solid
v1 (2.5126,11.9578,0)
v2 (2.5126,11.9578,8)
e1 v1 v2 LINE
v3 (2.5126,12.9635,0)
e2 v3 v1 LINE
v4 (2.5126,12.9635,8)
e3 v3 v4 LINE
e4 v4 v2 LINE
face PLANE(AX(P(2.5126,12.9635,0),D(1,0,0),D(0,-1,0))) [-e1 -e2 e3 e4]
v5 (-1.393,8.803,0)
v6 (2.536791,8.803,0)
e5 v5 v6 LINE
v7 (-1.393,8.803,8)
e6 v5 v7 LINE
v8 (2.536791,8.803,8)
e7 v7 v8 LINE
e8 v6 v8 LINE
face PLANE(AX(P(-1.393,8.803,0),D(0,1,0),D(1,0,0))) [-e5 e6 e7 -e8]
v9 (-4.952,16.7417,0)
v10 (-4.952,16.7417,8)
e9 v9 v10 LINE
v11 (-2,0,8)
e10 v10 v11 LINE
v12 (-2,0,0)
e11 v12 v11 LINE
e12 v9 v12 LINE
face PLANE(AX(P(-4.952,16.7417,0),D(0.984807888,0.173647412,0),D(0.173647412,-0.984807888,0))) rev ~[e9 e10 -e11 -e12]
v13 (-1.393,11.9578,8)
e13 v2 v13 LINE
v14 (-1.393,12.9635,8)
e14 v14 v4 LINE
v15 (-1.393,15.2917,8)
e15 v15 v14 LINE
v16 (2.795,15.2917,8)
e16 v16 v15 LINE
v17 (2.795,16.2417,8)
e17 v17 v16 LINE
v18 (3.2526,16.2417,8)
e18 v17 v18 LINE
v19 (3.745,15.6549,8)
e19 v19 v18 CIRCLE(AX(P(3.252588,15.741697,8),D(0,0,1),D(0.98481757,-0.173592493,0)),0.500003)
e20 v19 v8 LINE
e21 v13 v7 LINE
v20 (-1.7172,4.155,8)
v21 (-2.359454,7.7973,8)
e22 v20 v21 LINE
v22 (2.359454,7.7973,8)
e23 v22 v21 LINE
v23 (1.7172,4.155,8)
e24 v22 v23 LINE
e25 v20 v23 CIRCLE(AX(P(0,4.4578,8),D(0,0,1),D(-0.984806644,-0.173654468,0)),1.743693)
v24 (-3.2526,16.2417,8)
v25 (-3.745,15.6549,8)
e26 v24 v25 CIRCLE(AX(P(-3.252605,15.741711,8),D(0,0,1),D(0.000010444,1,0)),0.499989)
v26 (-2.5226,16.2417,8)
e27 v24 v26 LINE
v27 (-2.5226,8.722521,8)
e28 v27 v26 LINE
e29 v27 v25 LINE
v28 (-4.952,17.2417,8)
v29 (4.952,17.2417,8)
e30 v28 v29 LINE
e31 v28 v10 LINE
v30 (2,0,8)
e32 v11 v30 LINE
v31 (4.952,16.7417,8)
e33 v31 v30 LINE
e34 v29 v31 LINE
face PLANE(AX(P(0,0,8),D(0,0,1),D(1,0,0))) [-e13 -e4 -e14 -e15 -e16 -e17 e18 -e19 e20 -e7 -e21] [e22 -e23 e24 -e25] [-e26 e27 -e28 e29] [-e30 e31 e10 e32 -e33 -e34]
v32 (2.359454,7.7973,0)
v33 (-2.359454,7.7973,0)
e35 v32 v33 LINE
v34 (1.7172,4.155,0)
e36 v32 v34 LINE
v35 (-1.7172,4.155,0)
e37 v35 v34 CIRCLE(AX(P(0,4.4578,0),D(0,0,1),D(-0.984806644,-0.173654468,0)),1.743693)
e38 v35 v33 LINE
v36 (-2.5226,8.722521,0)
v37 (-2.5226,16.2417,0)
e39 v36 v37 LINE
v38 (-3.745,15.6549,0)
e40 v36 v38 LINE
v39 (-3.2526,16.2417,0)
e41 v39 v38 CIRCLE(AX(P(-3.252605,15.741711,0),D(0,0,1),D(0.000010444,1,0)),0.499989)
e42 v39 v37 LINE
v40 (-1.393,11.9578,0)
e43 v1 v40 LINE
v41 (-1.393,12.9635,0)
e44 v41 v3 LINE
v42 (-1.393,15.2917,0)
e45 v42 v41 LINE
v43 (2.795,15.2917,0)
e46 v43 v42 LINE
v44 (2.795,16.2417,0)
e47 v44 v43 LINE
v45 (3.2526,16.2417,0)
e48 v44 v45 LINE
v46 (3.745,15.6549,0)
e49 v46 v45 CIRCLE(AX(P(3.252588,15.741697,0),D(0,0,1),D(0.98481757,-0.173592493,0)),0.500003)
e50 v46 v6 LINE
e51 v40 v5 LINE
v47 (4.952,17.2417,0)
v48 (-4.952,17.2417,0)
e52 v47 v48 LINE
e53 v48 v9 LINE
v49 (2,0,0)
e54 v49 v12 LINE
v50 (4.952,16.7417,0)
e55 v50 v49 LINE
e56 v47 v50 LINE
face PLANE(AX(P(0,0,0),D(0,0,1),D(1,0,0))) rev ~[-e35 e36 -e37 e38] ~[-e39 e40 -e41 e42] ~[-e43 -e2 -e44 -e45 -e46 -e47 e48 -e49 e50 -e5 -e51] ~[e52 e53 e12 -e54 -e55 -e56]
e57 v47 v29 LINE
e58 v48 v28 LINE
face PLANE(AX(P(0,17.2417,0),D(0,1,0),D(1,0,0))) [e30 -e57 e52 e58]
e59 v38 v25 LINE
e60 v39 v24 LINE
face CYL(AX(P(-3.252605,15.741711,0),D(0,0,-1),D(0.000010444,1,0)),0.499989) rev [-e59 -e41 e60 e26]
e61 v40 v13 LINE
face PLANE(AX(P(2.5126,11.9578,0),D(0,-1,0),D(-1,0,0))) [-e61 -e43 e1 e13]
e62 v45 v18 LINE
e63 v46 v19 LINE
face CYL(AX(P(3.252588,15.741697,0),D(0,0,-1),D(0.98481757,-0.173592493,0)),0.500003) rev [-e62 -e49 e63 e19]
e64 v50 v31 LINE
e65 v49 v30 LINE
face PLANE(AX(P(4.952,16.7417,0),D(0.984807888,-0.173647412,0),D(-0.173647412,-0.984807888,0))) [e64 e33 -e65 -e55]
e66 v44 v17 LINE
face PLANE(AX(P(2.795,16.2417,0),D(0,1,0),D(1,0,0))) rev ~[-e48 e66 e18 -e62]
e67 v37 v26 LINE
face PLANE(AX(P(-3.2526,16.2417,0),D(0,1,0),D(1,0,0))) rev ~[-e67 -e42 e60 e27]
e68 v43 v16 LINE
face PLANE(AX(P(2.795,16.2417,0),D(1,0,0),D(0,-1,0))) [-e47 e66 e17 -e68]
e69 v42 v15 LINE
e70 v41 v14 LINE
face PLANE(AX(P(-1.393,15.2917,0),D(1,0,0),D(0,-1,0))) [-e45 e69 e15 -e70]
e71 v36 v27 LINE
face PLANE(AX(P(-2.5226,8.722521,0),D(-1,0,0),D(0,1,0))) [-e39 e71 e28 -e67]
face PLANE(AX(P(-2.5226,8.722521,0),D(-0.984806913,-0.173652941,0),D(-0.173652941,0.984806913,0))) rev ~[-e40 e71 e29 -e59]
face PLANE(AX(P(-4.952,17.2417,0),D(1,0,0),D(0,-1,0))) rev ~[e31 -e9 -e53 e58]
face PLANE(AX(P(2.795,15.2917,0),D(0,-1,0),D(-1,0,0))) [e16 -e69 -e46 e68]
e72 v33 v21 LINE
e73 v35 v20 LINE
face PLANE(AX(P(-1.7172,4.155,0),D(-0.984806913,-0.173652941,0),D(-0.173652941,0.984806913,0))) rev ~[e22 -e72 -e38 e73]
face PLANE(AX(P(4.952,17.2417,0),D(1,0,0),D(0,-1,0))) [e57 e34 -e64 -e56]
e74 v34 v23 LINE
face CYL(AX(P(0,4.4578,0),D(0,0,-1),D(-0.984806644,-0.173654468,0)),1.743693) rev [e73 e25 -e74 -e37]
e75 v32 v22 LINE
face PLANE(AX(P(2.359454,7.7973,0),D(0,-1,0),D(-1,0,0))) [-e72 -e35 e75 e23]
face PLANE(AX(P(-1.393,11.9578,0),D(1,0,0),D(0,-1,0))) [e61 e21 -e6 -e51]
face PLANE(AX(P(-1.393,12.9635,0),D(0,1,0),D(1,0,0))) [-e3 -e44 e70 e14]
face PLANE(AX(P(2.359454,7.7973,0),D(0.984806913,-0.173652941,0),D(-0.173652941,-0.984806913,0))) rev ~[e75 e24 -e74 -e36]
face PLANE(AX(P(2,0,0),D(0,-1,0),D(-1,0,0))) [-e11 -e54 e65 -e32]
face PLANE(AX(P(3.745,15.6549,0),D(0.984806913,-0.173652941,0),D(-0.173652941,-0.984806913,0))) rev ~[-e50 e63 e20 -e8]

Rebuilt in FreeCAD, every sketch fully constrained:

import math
import FreeCAD as App
import Part
import Sketcher
Q = App.Units.Quantity


def add_polygon(sketch, points):
    """Adds a closed chain of lines whose ends are joined by coincident constraints."""
    first, n = sketch.GeometryCount, len(points)
    for a, b in zip(points, points[1:] + points[:1]):
        sketch.addGeometry(Part.LineSegment(App.Vector(*a, 0), App.Vector(*b, 0)), False)
    for i in range(n):
        sketch.addConstraint(Sketcher.Constraint("Coincident", first + i, 2, first + (i + 1) % n, 1))

doc = App.newDocument("Part")
body = doc.addObject("PartDesign::Body", "Body")

sketch1 = body.newObject("Sketcher::SketchObject", "Sketch")
sketch1.AttachmentSupport = (doc.getObject("XY_Plane"), [""])
sketch1.MapMode = "FlatFace"
add_polygon(sketch1, [(4.95, 17.24), (-4.95, 17.24), (-4.95, 16.74), (-2, 0), (2, 0), (4.95, 16.74)])
sketch1.addGeometry(Part.ArcOfCircle(Part.Circle(App.Vector(-3.25, 15.74, 0), App.Vector(0, 0, 1), 0.5), math.radians(90), math.radians(190)), False)
sketch1.addGeometry(Part.LineSegment(App.Vector(-3.25, 16.24, 0), App.Vector(-2.52, 16.24, 0)), False)
sketch1.addGeometry(Part.LineSegment(App.Vector(-2.52, 16.24, 0), App.Vector(-2.52, 8.72, 0)), False)
sketch1.addGeometry(Part.LineSegment(App.Vector(-2.52, 8.72, 0), App.Vector(-3.75, 15.65, 0)), False)
sketch1.addGeometry(Part.LineSegment(App.Vector(-1.72, 4.16, 0), App.Vector(-2.36, 7.8, 0)), False)
sketch1.addGeometry(Part.LineSegment(App.Vector(-2.36, 7.8, 0), App.Vector(2.36, 7.8, 0)), False)
sketch1.addGeometry(Part.LineSegment(App.Vector(2.36, 7.8, 0), App.Vector(1.72, 4.16, 0)), False)
sketch1.addGeometry(Part.ArcOfCircle(Part.Circle(App.Vector(0, 4.46, 0), App.Vector(0, 0, 1), 1.74), math.radians(-170), math.radians(-10)), False)
sketch1.addGeometry(Part.LineSegment(App.Vector(3.75, 15.65, 0), App.Vector(2.54, 8.8, 0)), False)
sketch1.addGeometry(Part.LineSegment(App.Vector(2.54, 8.8, 0), App.Vector(-1.39, 8.8, 0)), False)
sketch1.addGeometry(Part.LineSegment(App.Vector(-1.39, 8.8, 0), App.Vector(-1.39, 11.96, 0)), False)
sketch1.addGeometry(Part.LineSegment(App.Vector(-1.39, 11.96, 0), App.Vector(2.51, 11.96, 0)), False)
sketch1.addGeometry(Part.LineSegment(App.Vector(2.51, 11.96, 0), App.Vector(2.51, 12.96, 0)), False)
sketch1.addGeometry(Part.LineSegment(App.Vector(2.51, 12.96, 0), App.Vector(-1.39, 12.96, 0)), False)
sketch1.addGeometry(Part.LineSegment(App.Vector(-1.39, 12.96, 0), App.Vector(-1.39, 15.29, 0)), False)
sketch1.addGeometry(Part.LineSegment(App.Vector(-1.39, 15.29, 0), App.Vector(2.79, 15.29, 0)), False)
sketch1.addGeometry(Part.LineSegment(App.Vector(2.79, 15.29, 0), App.Vector(2.79, 16.24, 0)), False)
sketch1.addGeometry(Part.LineSegment(App.Vector(2.79, 16.24, 0), App.Vector(3.25, 16.24, 0)), False)
sketch1.addGeometry(Part.ArcOfCircle(Part.Circle(App.Vector(3.25, 15.74, 0), App.Vector(0, 0, 1), 0.5), math.radians(-10), math.radians(90)), False)
sketch1.addConstraint(Sketcher.Constraint("Tangent", 6, 1, 7, 1))
sketch1.addConstraint(Sketcher.Constraint("Coincident", 7, 2, 8, 1))
sketch1.addConstraint(Sketcher.Constraint("Coincident", 8, 2, 9, 1))
sketch1.addConstraint(Sketcher.Constraint("Tangent", 9, 2, 6, 2))
sketch1.addConstraint(Sketcher.Constraint("Coincident", 10, 2, 11, 1))
sketch1.addConstraint(Sketcher.Constraint("Coincident", 11, 2, 12, 1))
sketch1.addConstraint(Sketcher.Constraint("Tangent", 12, 2, 13, 2))
sketch1.addConstraint(Sketcher.Constraint("Tangent", 13, 1, 10, 1))
sketch1.addConstraint(Sketcher.Constraint("Coincident", 14, 2, 15, 1))
sketch1.addConstraint(Sketcher.Constraint("Coincident", 15, 2, 16, 1))
sketch1.addConstraint(Sketcher.Constraint("Coincident", 16, 2, 17, 1))
sketch1.addConstraint(Sketcher.Constraint("Coincident", 17, 2, 18, 1))
sketch1.addConstraint(Sketcher.Constraint("Coincident", 18, 2, 19, 1))
sketch1.addConstraint(Sketcher.Constraint("Coincident", 19, 2, 20, 1))
sketch1.addConstraint(Sketcher.Constraint("Coincident", 20, 2, 21, 1))
sketch1.addConstraint(Sketcher.Constraint("Coincident", 21, 2, 22, 1))
sketch1.addConstraint(Sketcher.Constraint("Coincident", 22, 2, 23, 1))
sketch1.addConstraint(Sketcher.Constraint("Tangent", 23, 2, 24, 2))
sketch1.addConstraint(Sketcher.Constraint("Tangent", 24, 1, 14, 1))
sketch1.addConstraint(Sketcher.Constraint("Horizontal", 0))
sketch1.addConstraint(Sketcher.Constraint("Vertical", 1))
sketch1.addConstraint(Sketcher.Constraint("Horizontal", 3))
sketch1.addConstraint(Sketcher.Constraint("Vertical", 5))
sketch1.addConstraint(Sketcher.Constraint("Horizontal", 7))
sketch1.addConstraint(Sketcher.Constraint("Vertical", 8))
sketch1.addConstraint(Sketcher.Constraint("Horizontal", 11))
sketch1.addConstraint(Sketcher.Constraint("Horizontal", 15))
sketch1.addConstraint(Sketcher.Constraint("Vertical", 16))
sketch1.addConstraint(Sketcher.Constraint("Horizontal", 17))
sketch1.addConstraint(Sketcher.Constraint("Vertical", 18))
sketch1.addConstraint(Sketcher.Constraint("Horizontal", 19))
sketch1.addConstraint(Sketcher.Constraint("Vertical", 20))
sketch1.addConstraint(Sketcher.Constraint("Horizontal", 21))
sketch1.addConstraint(Sketcher.Constraint("Vertical", 22))
sketch1.addConstraint(Sketcher.Constraint("Horizontal", 23))
sketch1.addConstraint(Sketcher.Constraint("Equal", 6, 24))
sketch1.addConstraint(Sketcher.Constraint("Symmetric", 2, 2, 3, 2, -1, 1))
sketch1.addConstraint(Sketcher.Constraint("Symmetric", 6, 3, 24, 3, -2))
sketch1.addConstraint(Sketcher.Constraint("Symmetric", 1, 2, 4, 2, -2))
sketch1.addConstraint(Sketcher.Constraint("Symmetric", 12, 2, 13, 1, -2))
sketch1.addConstraint(Sketcher.Constraint("Parallel", 2, 9))
sketch1.addConstraint(Sketcher.Constraint("Parallel", 9, 10))
sketch1.addConstraint(Sketcher.Constraint("Parallel", 12, 14))
sketch1.addConstraint(Sketcher.Constraint("Vertical", 16, 2, 19, 2))
sketch1.addConstraint(Sketcher.Constraint("Radius", 6, 0.5))
sketch1.addConstraint(Sketcher.Constraint("Distance", 2, 17.0))
sketch1.addConstraint(Sketcher.Constraint("DistanceY", 1, 2, 1, 1, 0.5))
sketch1.addConstraint(Sketcher.Constraint("DistanceX", 2, 2, -1, 1, 2.0))
sketch1.addConstraint(Sketcher.Constraint("DistanceY", 6, 3, 1, 2, 1.0))
sketch1.addConstraint(Sketcher.Constraint("Angle", 2, Q("-80 deg")))
sketch1.addConstraint(Sketcher.Constraint("DistanceX", 7, 1, 7, 2, 0.73))
sketch1.addConstraint(Sketcher.Constraint("DistanceY", 22, 1, 22, 2, 0.95))
sketch1.addConstraint(Sketcher.Constraint("Radius", 13, 1.7437))
sketch1.addConstraint(Sketcher.Constraint("DistanceX", 11, 1, 11, 2, 4.719))
sketch1.addConstraint(Sketcher.Constraint("DistanceX", 21, 1, 21, 2, 4.188))
sketch1.addConstraint(Sketcher.Constraint("DistanceX", 17, 2, 24, 3, 0.74))
sketch1.addConstraint(Sketcher.Constraint("DistanceX", 21, 2, 24, 1, 0.95))
sketch1.addConstraint(Sketcher.Constraint("DistanceX", 15, 2, 15, 1, 3.9298))
sketch1.addConstraint(Sketcher.Constraint("DistanceY", 16, 1, 16, 2, 3.1548))
sketch1.addConstraint(Sketcher.Constraint("DistanceY", 18, 1, 18, 2, 1.0057))
sketch1.addConstraint(Sketcher.Constraint("DistanceX", 9, 2, -1, 1, 3.745))
sketch1.addConstraint(Sketcher.Constraint("DistanceY", -1, 1, 12, 2, 4.155))
pad1 = body.newObject("PartDesign::Pad", "Pad")
pad1.Profile = sketch1
pad1.Length = 8

doc.recompute()
